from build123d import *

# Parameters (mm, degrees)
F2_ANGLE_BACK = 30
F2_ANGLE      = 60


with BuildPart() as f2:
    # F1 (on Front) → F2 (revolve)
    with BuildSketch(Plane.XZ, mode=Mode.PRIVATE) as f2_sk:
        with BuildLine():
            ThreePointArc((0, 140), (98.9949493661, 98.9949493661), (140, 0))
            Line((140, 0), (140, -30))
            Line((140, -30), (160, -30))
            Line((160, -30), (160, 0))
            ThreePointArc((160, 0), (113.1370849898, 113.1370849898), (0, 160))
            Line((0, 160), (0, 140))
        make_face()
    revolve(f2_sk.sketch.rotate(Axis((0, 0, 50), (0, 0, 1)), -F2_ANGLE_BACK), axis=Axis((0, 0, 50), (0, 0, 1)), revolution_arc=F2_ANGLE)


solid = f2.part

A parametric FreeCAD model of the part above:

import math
import FreeCAD as App
import Part
import Sketcher

V = App.Vector
Q = App.Units.Quantity

doc = App.newDocument("Part")
body = doc.addObject("PartDesign::Body", "Body")

sketch1 = doc.addObject("Sketcher::SketchObject", "Sketch")
body.addObject(sketch1)
sketch1.Placement = App.Placement(V(0, 0, 0), App.Rotation(V(0.866025404, -0.5, 0), V(0, 0, 1), V(-0.5, -0.866025404, 0), "ZXY"))
sketch1.addGeometry([
    Part.ArcOfCircle(Part.Circle(V(0, 0, 0), V(0, 0, 1), 140), math.radians(0), math.radians(90)),
    Part.LineSegment(V(140, 0, 0), V(140, -30, 0)),
    Part.LineSegment(V(140, -30, 0), V(160, -30, 0)),
    Part.LineSegment(V(160, -30, 0), V(160, 0, 0)),
    Part.ArcOfCircle(Part.Circle(V(0, 0, 0), V(0, 0, 1), 160), math.radians(0), math.radians(90)),
    Part.LineSegment(V(0, 160, 0), V(0, 140, 0)),
], False)
sketch1.addConstraint([
    Sketcher.Constraint("Tangent", 0, 1, 1, 1),
    Sketcher.Constraint("Coincident", 1, 2, 2, 1),
    Sketcher.Constraint("Coincident", 2, 2, 3, 1),
    Sketcher.Constraint("Tangent", 3, 2, 4, 1),
    Sketcher.Constraint("Coincident", 4, 2, 5, 1),
    Sketcher.Constraint("Coincident", 5, 2, 0, 2),
    Sketcher.Constraint("Vertical", 1),
    Sketcher.Constraint("Horizontal", 2),
    Sketcher.Constraint("Vertical", 3),
    Sketcher.Constraint("Vertical", 5),
    Sketcher.Constraint("Coincident", 0, 3, -1, 1),
    Sketcher.Constraint("Coincident", 4, 3, -1, 1),
    Sketcher.Constraint("PointOnObject", 4, 2, -2),
    Sketcher.Constraint("Radius", 0, Q("140 mm")),
    Sketcher.Constraint("Radius", 4, Q("160 mm")),
    Sketcher.Constraint("DistanceY", 1, 2, 1, 1, Q("30 mm")),
])
revolution = doc.addObject("PartDesign::Revolution", "Revolution")
body.addObject(revolution)
revolution.Profile = sketch1
revolution.ReferenceAxis = (sketch1, ["V_Axis"])
revolution.Angle = 60

doc.recompute()
